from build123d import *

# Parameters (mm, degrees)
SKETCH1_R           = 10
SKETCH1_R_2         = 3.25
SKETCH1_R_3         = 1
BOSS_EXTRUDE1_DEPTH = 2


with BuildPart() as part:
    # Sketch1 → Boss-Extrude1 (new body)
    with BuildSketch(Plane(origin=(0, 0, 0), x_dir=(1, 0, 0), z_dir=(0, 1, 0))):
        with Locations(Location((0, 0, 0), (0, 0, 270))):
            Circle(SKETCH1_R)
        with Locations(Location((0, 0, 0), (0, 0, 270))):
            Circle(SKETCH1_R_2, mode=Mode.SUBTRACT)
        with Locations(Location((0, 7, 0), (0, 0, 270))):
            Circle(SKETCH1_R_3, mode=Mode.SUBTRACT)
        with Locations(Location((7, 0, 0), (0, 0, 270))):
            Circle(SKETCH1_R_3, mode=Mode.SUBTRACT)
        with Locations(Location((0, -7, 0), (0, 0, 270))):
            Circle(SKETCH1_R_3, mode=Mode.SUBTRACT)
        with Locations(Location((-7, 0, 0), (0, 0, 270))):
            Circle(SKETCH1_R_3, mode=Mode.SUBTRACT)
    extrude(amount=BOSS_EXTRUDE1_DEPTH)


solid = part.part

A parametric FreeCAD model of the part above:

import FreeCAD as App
import Part
import Sketcher
Q = App.Units.Quantity

doc = App.newDocument("Part")
body = doc.addObject("PartDesign::Body", "Body")

sketch1 = body.newObject("Sketcher::SketchObject", "Sketch")
sketch1.AttachmentSupport = (doc.getObject("XZ_Plane"), [""])
sketch1.MapMode = "FlatFace"
sketch1.addGeometry([
    Part.Circle(App.Vector(0, 0, 0), App.Vector(0, 0, 1), 10),
    Part.Circle(App.Vector(0, -7, 0), App.Vector(0, 0, 1), 1),
    Part.Circle(App.Vector(-7, 0, 0), App.Vector(0, 0, 1), 1),
    Part.Circle(App.Vector(0, 0, 0), App.Vector(0, 0, 1), 3.2),
    Part.Circle(App.Vector(7, 0, 0), App.Vector(0, 0, 1), 1),
    Part.Circle(App.Vector(0, 7, 0), App.Vector(0, 0, 1), 1),
], False)
sketch1.addConstraint([
    Sketcher.Constraint("Coincident", 0, 3, -1, 1),
    Sketcher.Constraint("Coincident", 3, 3, -1, 1),
    Sketcher.Constraint("Equal", 1, 2),
    Sketcher.Constraint("Equal", 2, 4),
    Sketcher.Constraint("Equal", 4, 5),
    Sketcher.Constraint("Symmetric", 2, 3, 4, 3, -1, 1),
    Sketcher.Constraint("Symmetric", 1, 3, 5, 3, -1, 1),
    Sketcher.Constraint("PointOnObject", 1, 3, -2),
    Sketcher.Constraint("PointOnObject", 2, 3, -1),
    Sketcher.Constraint("Diameter", 0, Q("20 mm")),
    Sketcher.Constraint("Diameter", 1, Q("2 mm")),
    Sketcher.Constraint("Diameter", 3, Q("6.5 mm")),
    Sketcher.Constraint("DistanceY", 1, 3, -1, 1, Q("7 mm")),
    Sketcher.Constraint("DistanceX", 2, 3, -1, 1, Q("7 mm")),
])
pad1 = body.newObject("PartDesign::Pad", "Pad")
pad1.Profile = sketch1
pad1.Length = 2
pad1.Reversed = True

doc.recompute()
